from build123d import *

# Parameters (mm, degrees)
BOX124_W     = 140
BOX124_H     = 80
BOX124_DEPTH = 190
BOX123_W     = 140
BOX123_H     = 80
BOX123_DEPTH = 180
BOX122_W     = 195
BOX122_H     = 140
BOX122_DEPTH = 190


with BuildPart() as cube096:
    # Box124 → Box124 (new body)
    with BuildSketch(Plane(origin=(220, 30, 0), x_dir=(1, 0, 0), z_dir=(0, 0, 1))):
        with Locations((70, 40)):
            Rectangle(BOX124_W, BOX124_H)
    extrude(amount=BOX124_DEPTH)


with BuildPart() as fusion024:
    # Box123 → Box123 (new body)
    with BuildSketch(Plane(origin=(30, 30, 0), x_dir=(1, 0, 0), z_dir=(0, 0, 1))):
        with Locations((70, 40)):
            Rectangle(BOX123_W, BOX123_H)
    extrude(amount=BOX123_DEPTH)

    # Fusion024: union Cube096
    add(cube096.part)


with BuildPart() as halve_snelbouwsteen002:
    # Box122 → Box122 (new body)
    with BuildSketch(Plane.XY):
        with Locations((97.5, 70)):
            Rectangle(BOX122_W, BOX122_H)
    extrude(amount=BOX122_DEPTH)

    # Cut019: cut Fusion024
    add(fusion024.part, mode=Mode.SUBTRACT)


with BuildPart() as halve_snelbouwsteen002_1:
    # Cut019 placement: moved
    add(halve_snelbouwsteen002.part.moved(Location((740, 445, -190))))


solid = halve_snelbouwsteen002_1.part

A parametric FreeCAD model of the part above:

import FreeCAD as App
import Part
import Sketcher
Q = App.Units.Quantity


def add_polygon(sketch, points):
    """Adds a closed chain of lines whose ends are joined by coincident constraints."""
    first, n = sketch.GeometryCount, len(points)
    for a, b in zip(points, points[1:] + points[:1]):
        sketch.addGeometry(Part.LineSegment(App.Vector(*a, 0), App.Vector(*b, 0)), False)
    for i in range(n):
        sketch.addConstraint(Sketcher.Constraint("Coincident", first + i, 2, first + (i + 1) % n, 1))

doc = App.newDocument("Part")
body = doc.addObject("PartDesign::Body", "Body")

sketch1 = body.newObject("Sketcher::SketchObject", "Sketch")
sketch1.AttachmentSupport = (doc.getObject("XY_Plane"), [""])
sketch1.MapMode = "FlatFace"
add_polygon(sketch1, [(220, 110), (220, 30), (360, 30), (360, 110)])
sketch1.addConstraint([
    Sketcher.Constraint("Vertical", 0),
    Sketcher.Constraint("Horizontal", 1),
    Sketcher.Constraint("Vertical", 2),
    Sketcher.Constraint("Horizontal", 3),
    Sketcher.Constraint("DistanceX", 1, 1, 1, 2, Q("140 mm")),
    Sketcher.Constraint("DistanceY", 0, 2, 0, 1, Q("80 mm")),
    Sketcher.Constraint("DistanceX", -1, 1, 0, 2, Q("220 mm")),
    Sketcher.Constraint("DistanceY", -1, 1, 0, 2, Q("30 mm")),
])
pad1 = body.newObject("PartDesign::Pad", "Pad")
pad1.Profile = sketch1
pad1.Length = 190
body2 = doc.addObject("PartDesign::Body", "Body001")
body2.AllowCompound = True

sketch2 = body2.newObject("Sketcher::SketchObject", "Sketch001")
sketch2.AttachmentSupport = (doc.getObject("XY_Plane001"), [""])
sketch2.MapMode = "FlatFace"
add_polygon(sketch2, [(30, 110), (30, 30), (170, 30), (170, 110)])
sketch2.addConstraint([
    Sketcher.Constraint("Vertical", 0),
    Sketcher.Constraint("Horizontal", 1),
    Sketcher.Constraint("Vertical", 2),
    Sketcher.Constraint("Horizontal", 3),
    Sketcher.Constraint("DistanceX", 1, 1, 1, 2, Q("140 mm")),
    Sketcher.Constraint("DistanceY", 0, 2, 0, 1, Q("80 mm")),
    Sketcher.Constraint("DistanceX", -1, 1, 0, 2, Q("30 mm")),
    Sketcher.Constraint("DistanceY", -1, 1, 0, 2, Q("30 mm")),
])
pad2 = body2.newObject("PartDesign::Pad", "Pad001")
pad2.Profile = sketch2
pad2.Length = 180
doc.recompute()

boolean = body2.newObject("PartDesign::Boolean", "Boolean")
boolean.Type = "Fuse"
boolean.addObjects([body])
body3 = doc.addObject("PartDesign::Body", "Body002")

sketch3 = body3.newObject("Sketcher::SketchObject", "Sketch002")
sketch3.AttachmentSupport = (doc.getObject("XY_Plane002"), [""])
sketch3.MapMode = "FlatFace"
add_polygon(sketch3, [(0, 140), (0, 0), (195, 0), (195, 140)])
sketch3.addConstraint([
    Sketcher.Constraint("Vertical", 0),
    Sketcher.Constraint("Horizontal", 1),
    Sketcher.Constraint("Vertical", 2),
    Sketcher.Constraint("Horizontal", 3),
    Sketcher.Constraint("Coincident", 0, 2, -1, 1),
    Sketcher.Constraint("DistanceX", 1, 1, 1, 2, Q("195 mm")),
    Sketcher.Constraint("DistanceY", 0, 2, 0, 1, Q("140 mm")),
])
pad3 = body3.newObject("PartDesign::Pad", "Pad002")
pad3.Profile = sketch3
pad3.Length = 190
doc.recompute()

boolean2 = body3.newObject("PartDesign::Boolean", "Boolean001")
boolean2.Type = "Cut"
boolean2.addObjects([body2])
body4 = doc.addObject("PartDesign::Body", "Body003")
doc.recompute()

body3.Placement = App.Placement(App.Vector(740, 445, -190), App.Rotation(App.Vector(0, 0, 1), 0))
boolean3 = body4.newObject("PartDesign::Boolean", "Boolean002")
boolean3.Type = "Fuse"
boolean3.addObjects([body3])

doc.recompute()
